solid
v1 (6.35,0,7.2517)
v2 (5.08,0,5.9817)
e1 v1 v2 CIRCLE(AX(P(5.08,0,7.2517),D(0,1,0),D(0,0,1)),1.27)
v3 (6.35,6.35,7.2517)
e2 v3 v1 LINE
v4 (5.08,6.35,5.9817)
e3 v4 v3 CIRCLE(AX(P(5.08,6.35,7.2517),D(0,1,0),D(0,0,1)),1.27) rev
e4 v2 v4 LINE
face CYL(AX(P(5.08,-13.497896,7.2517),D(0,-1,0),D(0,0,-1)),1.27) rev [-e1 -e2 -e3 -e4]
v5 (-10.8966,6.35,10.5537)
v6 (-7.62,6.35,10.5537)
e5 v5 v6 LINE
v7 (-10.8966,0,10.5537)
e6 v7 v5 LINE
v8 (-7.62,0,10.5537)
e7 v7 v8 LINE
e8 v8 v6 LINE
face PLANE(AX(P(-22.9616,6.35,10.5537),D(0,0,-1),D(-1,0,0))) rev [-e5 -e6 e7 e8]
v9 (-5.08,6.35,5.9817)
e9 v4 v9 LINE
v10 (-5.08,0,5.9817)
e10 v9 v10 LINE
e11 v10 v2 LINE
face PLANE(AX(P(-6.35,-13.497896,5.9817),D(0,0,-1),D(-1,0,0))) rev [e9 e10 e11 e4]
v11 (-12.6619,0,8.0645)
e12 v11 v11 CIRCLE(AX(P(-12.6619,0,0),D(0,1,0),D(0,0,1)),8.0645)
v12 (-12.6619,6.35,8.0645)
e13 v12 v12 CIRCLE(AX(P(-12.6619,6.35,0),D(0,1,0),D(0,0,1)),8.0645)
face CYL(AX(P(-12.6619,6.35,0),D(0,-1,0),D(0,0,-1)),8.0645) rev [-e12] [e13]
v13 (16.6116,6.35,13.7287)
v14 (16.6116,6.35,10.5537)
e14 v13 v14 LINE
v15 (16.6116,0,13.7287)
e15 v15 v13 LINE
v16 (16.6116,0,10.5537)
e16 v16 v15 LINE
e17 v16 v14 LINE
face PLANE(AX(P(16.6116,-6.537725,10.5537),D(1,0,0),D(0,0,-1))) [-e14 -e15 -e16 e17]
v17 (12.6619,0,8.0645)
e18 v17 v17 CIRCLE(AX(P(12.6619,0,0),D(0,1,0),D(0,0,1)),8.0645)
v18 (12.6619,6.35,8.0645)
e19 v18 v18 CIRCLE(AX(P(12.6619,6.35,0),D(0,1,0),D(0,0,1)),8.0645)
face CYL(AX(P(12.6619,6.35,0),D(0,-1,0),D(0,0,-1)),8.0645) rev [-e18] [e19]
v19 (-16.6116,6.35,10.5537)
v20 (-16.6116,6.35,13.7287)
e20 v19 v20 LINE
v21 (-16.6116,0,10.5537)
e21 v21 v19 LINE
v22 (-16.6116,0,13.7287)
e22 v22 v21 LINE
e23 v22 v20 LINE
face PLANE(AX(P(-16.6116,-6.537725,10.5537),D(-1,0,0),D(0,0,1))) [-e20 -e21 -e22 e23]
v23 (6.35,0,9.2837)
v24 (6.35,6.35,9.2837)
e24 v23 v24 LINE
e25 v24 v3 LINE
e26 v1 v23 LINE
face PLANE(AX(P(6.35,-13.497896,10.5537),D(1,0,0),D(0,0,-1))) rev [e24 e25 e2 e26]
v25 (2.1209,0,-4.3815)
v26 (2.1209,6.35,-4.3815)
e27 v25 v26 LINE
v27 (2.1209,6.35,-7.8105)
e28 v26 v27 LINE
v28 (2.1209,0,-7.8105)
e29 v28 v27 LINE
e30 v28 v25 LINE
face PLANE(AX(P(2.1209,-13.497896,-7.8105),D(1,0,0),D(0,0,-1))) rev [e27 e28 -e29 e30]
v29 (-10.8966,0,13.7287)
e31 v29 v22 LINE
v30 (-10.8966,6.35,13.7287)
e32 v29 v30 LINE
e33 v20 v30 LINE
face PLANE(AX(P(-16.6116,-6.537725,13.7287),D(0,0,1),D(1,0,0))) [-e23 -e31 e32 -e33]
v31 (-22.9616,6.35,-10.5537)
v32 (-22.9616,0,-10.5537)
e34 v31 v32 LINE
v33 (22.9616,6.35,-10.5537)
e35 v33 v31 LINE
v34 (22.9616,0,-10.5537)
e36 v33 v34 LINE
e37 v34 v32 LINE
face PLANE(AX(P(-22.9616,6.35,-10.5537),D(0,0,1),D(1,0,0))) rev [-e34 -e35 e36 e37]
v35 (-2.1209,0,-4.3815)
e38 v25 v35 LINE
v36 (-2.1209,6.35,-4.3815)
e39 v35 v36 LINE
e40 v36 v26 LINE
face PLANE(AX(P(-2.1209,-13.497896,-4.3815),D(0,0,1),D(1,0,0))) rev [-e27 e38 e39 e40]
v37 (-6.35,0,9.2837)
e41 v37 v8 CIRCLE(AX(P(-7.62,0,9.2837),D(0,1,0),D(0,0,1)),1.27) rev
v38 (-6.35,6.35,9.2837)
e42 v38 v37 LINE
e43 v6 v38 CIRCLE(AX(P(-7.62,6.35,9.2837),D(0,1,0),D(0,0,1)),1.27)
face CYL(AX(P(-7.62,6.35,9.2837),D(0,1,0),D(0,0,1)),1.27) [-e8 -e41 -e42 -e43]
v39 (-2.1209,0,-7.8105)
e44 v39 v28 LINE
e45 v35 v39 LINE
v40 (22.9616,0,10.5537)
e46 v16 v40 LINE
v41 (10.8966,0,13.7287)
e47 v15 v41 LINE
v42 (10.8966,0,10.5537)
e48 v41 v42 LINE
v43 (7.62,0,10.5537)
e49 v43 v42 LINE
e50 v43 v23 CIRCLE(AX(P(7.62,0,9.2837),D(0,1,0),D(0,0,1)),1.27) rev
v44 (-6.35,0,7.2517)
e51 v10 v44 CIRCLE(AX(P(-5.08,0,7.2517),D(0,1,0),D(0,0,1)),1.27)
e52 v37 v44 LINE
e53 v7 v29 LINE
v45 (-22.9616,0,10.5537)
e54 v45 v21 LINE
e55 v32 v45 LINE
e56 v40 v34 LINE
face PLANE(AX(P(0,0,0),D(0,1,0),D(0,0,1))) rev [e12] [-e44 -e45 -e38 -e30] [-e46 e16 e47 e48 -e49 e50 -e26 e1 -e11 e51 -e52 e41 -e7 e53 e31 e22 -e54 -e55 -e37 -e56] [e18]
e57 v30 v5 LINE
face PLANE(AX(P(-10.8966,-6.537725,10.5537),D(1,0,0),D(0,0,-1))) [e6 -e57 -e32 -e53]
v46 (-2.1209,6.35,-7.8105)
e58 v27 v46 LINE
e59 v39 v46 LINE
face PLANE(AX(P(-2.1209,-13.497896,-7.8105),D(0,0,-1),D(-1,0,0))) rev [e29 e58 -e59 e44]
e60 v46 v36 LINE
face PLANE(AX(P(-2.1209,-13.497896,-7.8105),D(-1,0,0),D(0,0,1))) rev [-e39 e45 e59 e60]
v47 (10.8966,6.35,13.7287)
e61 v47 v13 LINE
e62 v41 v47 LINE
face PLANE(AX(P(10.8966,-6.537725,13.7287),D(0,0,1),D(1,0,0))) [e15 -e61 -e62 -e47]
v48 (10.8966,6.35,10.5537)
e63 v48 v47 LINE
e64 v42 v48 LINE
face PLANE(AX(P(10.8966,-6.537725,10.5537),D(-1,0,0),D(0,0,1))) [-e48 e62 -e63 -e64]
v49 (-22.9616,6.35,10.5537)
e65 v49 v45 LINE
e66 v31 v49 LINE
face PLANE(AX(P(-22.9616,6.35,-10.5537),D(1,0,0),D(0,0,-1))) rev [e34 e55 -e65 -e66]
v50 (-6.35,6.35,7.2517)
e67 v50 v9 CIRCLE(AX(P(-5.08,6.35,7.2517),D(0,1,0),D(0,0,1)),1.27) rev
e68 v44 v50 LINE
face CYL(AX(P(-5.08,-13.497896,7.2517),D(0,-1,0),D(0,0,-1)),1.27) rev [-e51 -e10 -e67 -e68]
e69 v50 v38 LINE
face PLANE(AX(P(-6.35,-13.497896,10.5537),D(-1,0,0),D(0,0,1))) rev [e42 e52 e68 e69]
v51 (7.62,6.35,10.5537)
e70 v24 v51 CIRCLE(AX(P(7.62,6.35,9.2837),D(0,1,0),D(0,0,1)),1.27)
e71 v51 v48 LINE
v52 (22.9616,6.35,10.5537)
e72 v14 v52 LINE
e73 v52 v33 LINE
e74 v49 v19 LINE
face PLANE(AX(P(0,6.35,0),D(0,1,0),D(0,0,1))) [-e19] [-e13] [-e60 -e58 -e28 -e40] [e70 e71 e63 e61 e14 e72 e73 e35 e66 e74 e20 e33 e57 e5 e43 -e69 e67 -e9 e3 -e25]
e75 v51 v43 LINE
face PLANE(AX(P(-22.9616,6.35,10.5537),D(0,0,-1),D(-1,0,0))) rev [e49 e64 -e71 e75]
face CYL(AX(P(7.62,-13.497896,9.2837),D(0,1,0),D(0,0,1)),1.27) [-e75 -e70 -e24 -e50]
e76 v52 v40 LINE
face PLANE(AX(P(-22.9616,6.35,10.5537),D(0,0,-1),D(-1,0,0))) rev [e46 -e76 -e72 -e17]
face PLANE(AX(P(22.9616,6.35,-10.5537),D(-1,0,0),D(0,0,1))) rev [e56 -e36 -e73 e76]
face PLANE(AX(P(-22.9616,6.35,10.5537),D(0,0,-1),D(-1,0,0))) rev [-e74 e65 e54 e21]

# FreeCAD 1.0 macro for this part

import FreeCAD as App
import Part
import Sketcher
from FreeCAD import Vector
Q = App.Units.Quantity


def edges_at(feature, points):
    """Names of the edges that pass closest to the given points."""
    edges = feature.Shape.Edges
    near = lambda p: min(range(len(edges)), key=lambda i: edges[i].distToShape(Part.Vertex(*p))[0])
    return sorted({f"Edge{near(p) + 1}" for p in points})

doc = App.newDocument("Part")
body = doc.addObject("PartDesign::Body", "Body")

# Sketch on XZ plane
sketch1 = doc.addObject("Sketcher::SketchObject", "Sketch")
body.addObject(sketch1)
sketch1.AttachmentSupport = (doc.XZ_Plane, [""])
sketch1.MapMode = "FlatFace"
sketch1.addGeometry([
    Part.LineSegment(Vector(-23, -11, 0), Vector(-23, 11, 0)),  # 0
    Part.LineSegment(Vector(-23, 11, 0), Vector(23, 11, 0)),  # 1
    Part.LineSegment(Vector(23, 11, 0), Vector(23, -11, 0)),  # 2
    Part.LineSegment(Vector(23, -11, 0), Vector(-23, -11, 0)),  # 3
    Part.Circle(Vector(-13, 0, 0), Vector(0, 0, 1), 8),  # 4
    Part.Circle(Vector(13, 0, 0), Vector(0, 0, 1), 8),  # 5
], False)
sketch1.addConstraint([
    Sketcher.Constraint("Coincident", 0, 2, 1, 1),
    Sketcher.Constraint("Coincident", 1, 2, 2, 1),
    Sketcher.Constraint("Coincident", 2, 2, 3, 1),
    Sketcher.Constraint("Coincident", 3, 2, 0, 1),
    Sketcher.Constraint("Vertical", 0),
    Sketcher.Constraint("Horizontal", 1),
    Sketcher.Constraint("Vertical", 2),
    Sketcher.Constraint("Horizontal", 3),
    Sketcher.Constraint("Equal", 4, 5),
    Sketcher.Constraint("Symmetric", 4, 3, 5, 3, -1, 1),
    Sketcher.Constraint("Symmetric", 0, 2, 2, 2, -1, 1),
    Sketcher.Constraint("PointOnObject", 4, 3, -1),
    Sketcher.Constraint("Diameter", 4, Q("0.635 in")),
    Sketcher.Constraint("DistanceX", 1, 1, 1, 2, Q("1.808 in")),
    Sketcher.Constraint("DistanceY", 0, 1, 0, 2, Q("0.831 in")),
    Sketcher.Constraint("DistanceX", 4, 3, 5, 3, Q("0.997 in")),
])
pad1 = doc.addObject("PartDesign::Pad", "Pad")
body.addObject(pad1)
pad1.Profile = sketch1
pad1.Length = Q("0.25 in")
pad1.Reversed = True

# Sketch on XZ plane
sketch2 = doc.addObject("Sketcher::SketchObject", "Sketch001")
body.addObject(sketch2)
sketch2.AttachmentSupport = (doc.XZ_Plane, [""])
sketch2.MapMode = "FlatFace"
sketch2.AttachmentOffset = App.Placement(Vector(0, 0, -0.25 * 25.4), App.Rotation())
sketch2.addGeometry([
    Part.LineSegment(Vector(-2.1, -7.8, 0), Vector(-2.1, -4.4, 0)),  # 0
    Part.LineSegment(Vector(-2.1, -4.4, 0), Vector(2.1, -4.4, 0)),  # 1
    Part.LineSegment(Vector(2.1, -4.4, 0), Vector(2.1, -7.8, 0)),  # 2
    Part.LineSegment(Vector(2.1, -7.8, 0), Vector(-2.1, -7.8, 0)),  # 3
    Part.LineSegment(Vector(-6.3, 6, 0), Vector(-6.3, 10.6, 0)),  # 4
    Part.LineSegment(Vector(-6.3, 10.6, 0), Vector(6.3, 10.6, 0)),  # 5
    Part.LineSegment(Vector(6.3, 10.6, 0), Vector(6.3, 6, 0)),  # 6
    Part.LineSegment(Vector(6.3, 6, 0), Vector(-6.3, 6, 0)),  # 7
], False)
sketch2.addConstraint([
    Sketcher.Constraint("Coincident", 0, 2, 1, 1),
    Sketcher.Constraint("Coincident", 1, 2, 2, 1),
    Sketcher.Constraint("Coincident", 2, 2, 3, 1),
    Sketcher.Constraint("Coincident", 3, 2, 0, 1),
    Sketcher.Constraint("Coincident", 4, 2, 5, 1),
    Sketcher.Constraint("Coincident", 5, 2, 6, 1),
    Sketcher.Constraint("Coincident", 6, 2, 7, 1),
    Sketcher.Constraint("Coincident", 7, 2, 4, 1),
    Sketcher.Constraint("Vertical", 0),
    Sketcher.Constraint("Horizontal", 1),
    Sketcher.Constraint("Vertical", 2),
    Sketcher.Constraint("Horizontal", 3),
    Sketcher.Constraint("Vertical", 4),
    Sketcher.Constraint("Horizontal", 5),
    Sketcher.Constraint("Vertical", 6),
    Sketcher.Constraint("Horizontal", 7),
    Sketcher.Constraint("DistanceX", 5, 1, 5, 2, Q("0.5 in")),
    Sketcher.Constraint("DistanceY", 4, 1, 4, 2, Q("0.18 in")),
    Sketcher.Constraint("DistanceX", 1, 1, 1, 2, Q("0.167 in")),
    Sketcher.Constraint("DistanceY", 0, 1, 0, 2, Q("0.135 in")),
    Sketcher.Constraint("DistanceX", 4, 2, -1, 1, Q("0.25 in")),
    Sketcher.Constraint("DistanceY", 0, 2, 4, 2, Q("0.588 in")),
    Sketcher.Constraint("DistanceX", 0, 2, -1, 1, Q("0.0835 in")),
    Sketcher.Constraint("DistanceY", 0, 2, -1, 1, Q("0.1725 in")),
])
pocket1 = doc.addObject("PartDesign::Pocket", "Pocket")
body.addObject(pocket1)
pocket1.Profile = sketch2
pocket1.Length = Q("0.25 in")
pocket1.Reversed = True

# Sketch on XZ plane
sketch3 = doc.addObject("Sketcher::SketchObject", "Sketch002")
body.addObject(sketch3)
sketch3.AttachmentSupport = (doc.XZ_Plane, [""])
sketch3.MapMode = "FlatFace"
sketch3.AttachmentOffset = App.Placement(Vector(0, 0, -0.25 * 25.4), App.Rotation())
sketch3.addGeometry([
    Part.LineSegment(Vector(-16.6, 10.6, 0), Vector(-16.6, 13.7, 0)),  # 0
    Part.LineSegment(Vector(-16.6, 13.7, 0), Vector(-10.9, 13.7, 0)),  # 1
    Part.LineSegment(Vector(-10.9, 13.7, 0), Vector(-10.9, 10.6, 0)),  # 2
    Part.LineSegment(Vector(-10.9, 10.6, 0), Vector(-16.6, 10.6, 0)),  # 3
    Part.LineSegment(Vector(10.9, 10.6, 0), Vector(10.9, 13.7, 0)),  # 4
    Part.LineSegment(Vector(10.9, 13.7, 0), Vector(16.6, 13.7, 0)),  # 5
    Part.LineSegment(Vector(16.6, 13.7, 0), Vector(16.6, 10.6, 0)),  # 6
    Part.LineSegment(Vector(16.6, 10.6, 0), Vector(10.9, 10.6, 0)),  # 7
], False)
sketch3.addConstraint([
    Sketcher.Constraint("Coincident", 0, 2, 1, 1),
    Sketcher.Constraint("Coincident", 1, 2, 2, 1),
    Sketcher.Constraint("Coincident", 2, 2, 3, 1),
    Sketcher.Constraint("Coincident", 3, 2, 0, 1),
    Sketcher.Constraint("Coincident", 4, 2, 5, 1),
    Sketcher.Constraint("Coincident", 5, 2, 6, 1),
    Sketcher.Constraint("Coincident", 6, 2, 7, 1),
    Sketcher.Constraint("Coincident", 7, 2, 4, 1),
    Sketcher.Constraint("Vertical", 0),
    Sketcher.Constraint("Horizontal", 1),
    Sketcher.Constraint("Vertical", 2),
    Sketcher.Constraint("Horizontal", 3),
    Sketcher.Constraint("Vertical", 4),
    Sketcher.Constraint("Horizontal", 5),
    Sketcher.Constraint("Vertical", 6),
    Sketcher.Constraint("Horizontal", 7),
    Sketcher.Constraint("Symmetric", 1, 2, 4, 2, -2),
    Sketcher.Constraint("Symmetric", 3, 2, 6, 2, -2),
    Sketcher.Constraint("DistanceX", 1, 1, 1, 2, Q("0.225 in")),
    Sketcher.Constraint("DistanceY", 0, 1, 0, 2, Q("0.125 in")),
    Sketcher.Constraint("DistanceX", 0, 2, -1, 1, Q("0.654 in")),
    Sketcher.Constraint("DistanceY", -1, 1, 0, 2, Q("0.5405 in")),
])
pad2 = doc.addObject("PartDesign::Pad", "Pad001")
body.addObject(pad2)
pad2.Profile = sketch3
pad2.Length = Q("0.25 in")
doc.recompute()

fillet = doc.addObject("PartDesign::Fillet", "Fillet")
body.addObject(fillet)
fillet.Base = (pad2, edges_at(pad2, [
    (-6.35, 3.175, 10.554),
    (-6.35, 3.175, 5.982),
    (6.35, 3.175, 5.982),
    (6.35, 3.175, 10.554),
]))
fillet.Radius = Q("0.05 in")

doc.recompute()
